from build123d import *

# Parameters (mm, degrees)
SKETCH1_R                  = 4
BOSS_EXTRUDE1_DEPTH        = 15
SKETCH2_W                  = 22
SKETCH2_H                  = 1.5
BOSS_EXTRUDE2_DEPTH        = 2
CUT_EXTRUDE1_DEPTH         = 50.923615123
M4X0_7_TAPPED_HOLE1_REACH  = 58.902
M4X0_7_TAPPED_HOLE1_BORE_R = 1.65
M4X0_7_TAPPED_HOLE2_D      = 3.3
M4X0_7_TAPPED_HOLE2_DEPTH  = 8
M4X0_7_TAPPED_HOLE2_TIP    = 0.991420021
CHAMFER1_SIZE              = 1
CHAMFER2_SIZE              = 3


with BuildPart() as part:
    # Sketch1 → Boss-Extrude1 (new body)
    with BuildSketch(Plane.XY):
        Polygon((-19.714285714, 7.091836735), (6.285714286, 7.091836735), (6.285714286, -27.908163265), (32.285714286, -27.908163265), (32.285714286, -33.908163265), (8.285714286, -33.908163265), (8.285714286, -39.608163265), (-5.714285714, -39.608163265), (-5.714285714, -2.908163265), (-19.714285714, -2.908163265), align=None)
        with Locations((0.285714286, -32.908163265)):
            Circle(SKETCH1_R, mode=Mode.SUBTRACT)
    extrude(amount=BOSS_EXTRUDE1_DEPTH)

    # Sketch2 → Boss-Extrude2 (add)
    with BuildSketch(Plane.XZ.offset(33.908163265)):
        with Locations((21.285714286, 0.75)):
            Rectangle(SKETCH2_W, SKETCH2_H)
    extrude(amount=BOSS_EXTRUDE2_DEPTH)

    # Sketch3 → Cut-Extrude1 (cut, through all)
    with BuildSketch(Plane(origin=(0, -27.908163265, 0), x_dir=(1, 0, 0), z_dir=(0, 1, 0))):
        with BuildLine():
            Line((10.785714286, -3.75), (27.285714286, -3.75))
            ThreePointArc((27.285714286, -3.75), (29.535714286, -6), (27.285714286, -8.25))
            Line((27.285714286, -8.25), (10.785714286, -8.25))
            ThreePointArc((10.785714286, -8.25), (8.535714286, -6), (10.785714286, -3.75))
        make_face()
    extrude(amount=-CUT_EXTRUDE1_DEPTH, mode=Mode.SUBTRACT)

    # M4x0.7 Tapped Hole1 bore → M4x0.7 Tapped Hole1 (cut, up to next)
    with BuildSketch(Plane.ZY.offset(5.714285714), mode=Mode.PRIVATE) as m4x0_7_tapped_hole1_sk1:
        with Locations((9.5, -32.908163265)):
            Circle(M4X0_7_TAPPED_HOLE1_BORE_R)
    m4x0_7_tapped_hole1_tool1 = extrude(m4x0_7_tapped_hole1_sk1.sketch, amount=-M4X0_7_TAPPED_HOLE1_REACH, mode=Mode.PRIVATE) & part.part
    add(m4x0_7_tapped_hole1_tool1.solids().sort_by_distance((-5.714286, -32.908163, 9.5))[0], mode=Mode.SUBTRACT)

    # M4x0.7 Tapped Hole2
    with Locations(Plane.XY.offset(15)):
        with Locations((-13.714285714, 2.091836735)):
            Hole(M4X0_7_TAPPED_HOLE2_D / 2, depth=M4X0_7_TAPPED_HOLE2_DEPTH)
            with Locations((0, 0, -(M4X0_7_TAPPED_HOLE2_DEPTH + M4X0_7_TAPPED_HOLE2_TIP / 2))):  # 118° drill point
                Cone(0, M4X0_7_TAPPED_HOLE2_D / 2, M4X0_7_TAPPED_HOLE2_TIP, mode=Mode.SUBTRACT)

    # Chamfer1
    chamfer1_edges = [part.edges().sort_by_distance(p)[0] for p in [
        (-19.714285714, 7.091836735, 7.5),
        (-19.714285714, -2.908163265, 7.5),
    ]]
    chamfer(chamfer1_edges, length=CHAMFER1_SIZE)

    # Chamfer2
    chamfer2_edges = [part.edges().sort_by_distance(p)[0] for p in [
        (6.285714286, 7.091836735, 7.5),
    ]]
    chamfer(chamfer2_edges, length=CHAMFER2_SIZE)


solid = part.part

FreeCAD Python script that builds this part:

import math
import FreeCAD as App
import Part
import Sketcher
from FreeCAD import Vector


def edges_at(feature, points):
    """Names of the edges that pass closest to the given points."""
    edges = feature.Shape.Edges
    near = lambda p: min(range(len(edges)), key=lambda i: edges[i].distToShape(Part.Vertex(*p))[0])
    return sorted({f"Edge{near(p) + 1}" for p in points})


def add_polygon(sketch, points):
    """Adds a closed chain of lines whose ends are joined by coincident constraints."""
    first, n = sketch.GeometryCount, len(points)
    for a, b in zip(points, points[1:] + points[:1]):
        sketch.addGeometry(Part.LineSegment(App.Vector(*a, 0), App.Vector(*b, 0)), False)
    for i in range(n):
        sketch.addConstraint(Sketcher.Constraint("Coincident", first + i, 2, first + (i + 1) % n, 1))

doc = App.newDocument("Part")
body = doc.addObject("PartDesign::Body", "Body")

sketch1 = body.newObject("Sketcher::SketchObject", "Sketch")
sketch1.AttachmentSupport = (doc.getObject("XY_Plane"), [""])
sketch1.MapMode = "FlatFace"
add_polygon(sketch1, [(6.285714, 7.091837), (-19.714286, 7.091837), (-19.714286, -2.908163), (-5.714286, -2.908163), (-5.714286, -39.608163), (8.285714, -39.608163), (8.285714, -33.908163), (32.285714, -33.908163), (32.285714, -27.908163), (6.285714, -27.908163)])
sketch1.addGeometry(Part.Circle(Vector(0.285714, -32.908163, 0), Vector(0, 0, 1), 4), False)
sketch1.addConstraint([
    Sketcher.Constraint("Horizontal", 0),
    Sketcher.Constraint("Vertical", 1),
    Sketcher.Constraint("Horizontal", 2),
    Sketcher.Constraint("Vertical", 3),
    Sketcher.Constraint("Horizontal", 4),
    Sketcher.Constraint("Vertical", 5),
    Sketcher.Constraint("Horizontal", 6),
    Sketcher.Constraint("Vertical", 7),
    Sketcher.Constraint("Horizontal", 8),
    Sketcher.Constraint("Vertical", 9),
    Sketcher.Constraint("Equal", 2, 4),
    Sketcher.Constraint("Equal", 0, 8),
    Sketcher.Constraint("Diameter", 10, 8.0),
    Sketcher.Constraint("DistanceX", 0, 2, 0, 1, 26.0),
    Sketcher.Constraint("DistanceX", 2, 1, 2, 2, 14.0),
    Sketcher.Constraint("DistanceY", 1, 2, 1, 1, 10.0),
    Sketcher.Constraint("DistanceY", 7, 1, 7, 2, 6.0),
    Sketcher.Constraint("DistanceY", 9, 1, 9, 2, 35.0),
    Sketcher.Constraint("DistanceY", 3, 2, 3, 1, 36.7),
    Sketcher.Constraint("DistanceX", 0, 2, 10, 3, 20.0),
    Sketcher.Constraint("DistanceY", 10, 3, 0, 2, 40.0),
    Sketcher.Constraint("DistanceX", -1, 1, 10, 3, 0.285714),
    Sketcher.Constraint("DistanceY", 10, 3, -1, 1, 32.908163),
])
pad1 = body.newObject("PartDesign::Pad", "Pad")
pad1.Profile = sketch1
pad1.Length = 15

sketch2 = body.newObject("Sketcher::SketchObject", "Sketch001")
sketch2.AttachmentSupport = (doc.getObject("XZ_Plane"), [""])
sketch2.MapMode = "FlatFace"
sketch2.AttachmentOffset = App.Placement(Vector(0, 0, 33.908163), App.Rotation())
add_polygon(sketch2, [(10.285714, 1.5), (10.285714, 0), (32.285714, 0), (32.285714, 1.5)])
sketch2.addConstraint([
    Sketcher.Constraint("Vertical", 0),
    Sketcher.Constraint("Horizontal", 1),
    Sketcher.Constraint("Vertical", 2),
    Sketcher.Constraint("Horizontal", 3),
    Sketcher.Constraint("PointOnObject", 0, 2, -1),
    Sketcher.Constraint("DistanceX", 1, 1, 1, 2, 22.0),
    Sketcher.Constraint("DistanceY", 0, 2, 0, 1, 1.5),
    Sketcher.Constraint("DistanceX", -1, 1, 0, 2, 10.285714),
])
pad2 = body.newObject("PartDesign::Pad", "Pad001")
pad2.Profile = sketch2
pad2.Length = 2

sketch3 = body.newObject("Sketcher::SketchObject", "Sketch002")
sketch3.AttachmentSupport = (doc.getObject("XZ_Plane"), [""])
sketch3.MapMode = "FlatFace"
sketch3.AttachmentOffset = App.Placement(Vector(0, 0, 27.908163), App.Rotation())
sketch3.addGeometry([
    Part.LineSegment(Vector(27.285714, 3.75, 0), Vector(10.785714, 3.75, 0)),
    Part.ArcOfCircle(Part.Circle(Vector(10.785714, 6, 0), Vector(0, 0, 1), 2.25), math.radians(90), math.radians(270)),
    Part.LineSegment(Vector(10.785714, 8.25, 0), Vector(27.285714, 8.25, 0)),
    Part.ArcOfCircle(Part.Circle(Vector(27.285714, 6, 0), Vector(0, 0, 1), 2.25), math.radians(-90), math.radians(90)),
], False)
sketch3.addConstraint([
    Sketcher.Constraint("Tangent", 0, 2, 1, 2),
    Sketcher.Constraint("Tangent", 1, 1, 2, 1),
    Sketcher.Constraint("Tangent", 2, 2, 3, 2),
    Sketcher.Constraint("Tangent", 3, 1, 0, 1),
    Sketcher.Constraint("Horizontal", 0),
    Sketcher.Constraint("Horizontal", 2),
    Sketcher.Constraint("Radius", 1, 2.25),
    Sketcher.Constraint("DistanceX", 0, 2, 0, 1, 16.5),
    Sketcher.Constraint("DistanceY", -1, 1, 1, 3, 6.0),
    Sketcher.Constraint("DistanceX", -1, 1, 1, 3, 10.785714),
])
pocket1 = body.newObject("PartDesign::Pocket", "Pocket")
pocket1.Profile = sketch3
pocket1.Type = "ThroughAll"
pocket1.Reversed = True

sketch4 = body.newObject("Sketcher::SketchObject", "Sketch003")
sketch4.AttachmentSupport = (doc.getObject("YZ_Plane"), [""])
sketch4.MapMode = "FlatFace"
sketch4.AttachmentOffset = App.Placement(Vector(0, 0, -5.714286), App.Rotation())
sketch4.addGeometry(Part.Circle(Vector(-32.908163, 9.5, 0), Vector(0, 0, 1), 1.65), False)
sketch4.addConstraint([
    Sketcher.Constraint("Diameter", 0, 3.3),
    Sketcher.Constraint("DistanceY", -1, 1, 0, 3, 9.5),
    Sketcher.Constraint("DistanceX", 0, 3, -1, 1, 32.908163),
])
pocket2 = body.newObject("PartDesign::Pocket", "Pocket001")
pocket2.Profile = sketch4
pocket2.Type = "UpToFirst"
pocket2.Reversed = True

sketch5 = body.newObject("Sketcher::SketchObject", "Sketch004")
sketch5.AttachmentSupport = (doc.getObject("XY_Plane"), [""])
sketch5.MapMode = "FlatFace"
sketch5.AttachmentOffset = App.Placement(Vector(0, 0, 15), App.Rotation())
sketch5.addGeometry(Part.Circle(Vector(-13.714286, 2.091837, 0), Vector(0, 0, 1), 1.65), False)
sketch5.addConstraint([
    Sketcher.Constraint("Diameter", 0, 3.3),
    Sketcher.Constraint("DistanceX", 0, 3, -1, 1, 13.714286),
    Sketcher.Constraint("DistanceY", -1, 1, 0, 3, 2.091837),
])
doc.recompute()
hole = body.newObject("PartDesign::Hole", "Hole")
hole.Profile = sketch5
hole.ThreadType = "None"
hole.Diameter = 3.3
hole.DepthType = "Dimension"
hole.Depth = 8
hole.DrillPoint = "Angled"
hole.DrillPointAngle = 118
doc.recompute()

chamfer = body.newObject("PartDesign::Chamfer", "Chamfer")
chamfer.Base = (hole, edges_at(hole, [(-19.714, 7.092, 7.5), (-19.714, -2.908, 7.5)]))
chamfer.Size = 1
doc.recompute()

chamfer2 = body.newObject("PartDesign::Chamfer", "Chamfer001")
chamfer2.Base = (chamfer, edges_at(chamfer, [(6.286, 7.092, 7.5)]))
chamfer2.Size = 3

doc.recompute()
